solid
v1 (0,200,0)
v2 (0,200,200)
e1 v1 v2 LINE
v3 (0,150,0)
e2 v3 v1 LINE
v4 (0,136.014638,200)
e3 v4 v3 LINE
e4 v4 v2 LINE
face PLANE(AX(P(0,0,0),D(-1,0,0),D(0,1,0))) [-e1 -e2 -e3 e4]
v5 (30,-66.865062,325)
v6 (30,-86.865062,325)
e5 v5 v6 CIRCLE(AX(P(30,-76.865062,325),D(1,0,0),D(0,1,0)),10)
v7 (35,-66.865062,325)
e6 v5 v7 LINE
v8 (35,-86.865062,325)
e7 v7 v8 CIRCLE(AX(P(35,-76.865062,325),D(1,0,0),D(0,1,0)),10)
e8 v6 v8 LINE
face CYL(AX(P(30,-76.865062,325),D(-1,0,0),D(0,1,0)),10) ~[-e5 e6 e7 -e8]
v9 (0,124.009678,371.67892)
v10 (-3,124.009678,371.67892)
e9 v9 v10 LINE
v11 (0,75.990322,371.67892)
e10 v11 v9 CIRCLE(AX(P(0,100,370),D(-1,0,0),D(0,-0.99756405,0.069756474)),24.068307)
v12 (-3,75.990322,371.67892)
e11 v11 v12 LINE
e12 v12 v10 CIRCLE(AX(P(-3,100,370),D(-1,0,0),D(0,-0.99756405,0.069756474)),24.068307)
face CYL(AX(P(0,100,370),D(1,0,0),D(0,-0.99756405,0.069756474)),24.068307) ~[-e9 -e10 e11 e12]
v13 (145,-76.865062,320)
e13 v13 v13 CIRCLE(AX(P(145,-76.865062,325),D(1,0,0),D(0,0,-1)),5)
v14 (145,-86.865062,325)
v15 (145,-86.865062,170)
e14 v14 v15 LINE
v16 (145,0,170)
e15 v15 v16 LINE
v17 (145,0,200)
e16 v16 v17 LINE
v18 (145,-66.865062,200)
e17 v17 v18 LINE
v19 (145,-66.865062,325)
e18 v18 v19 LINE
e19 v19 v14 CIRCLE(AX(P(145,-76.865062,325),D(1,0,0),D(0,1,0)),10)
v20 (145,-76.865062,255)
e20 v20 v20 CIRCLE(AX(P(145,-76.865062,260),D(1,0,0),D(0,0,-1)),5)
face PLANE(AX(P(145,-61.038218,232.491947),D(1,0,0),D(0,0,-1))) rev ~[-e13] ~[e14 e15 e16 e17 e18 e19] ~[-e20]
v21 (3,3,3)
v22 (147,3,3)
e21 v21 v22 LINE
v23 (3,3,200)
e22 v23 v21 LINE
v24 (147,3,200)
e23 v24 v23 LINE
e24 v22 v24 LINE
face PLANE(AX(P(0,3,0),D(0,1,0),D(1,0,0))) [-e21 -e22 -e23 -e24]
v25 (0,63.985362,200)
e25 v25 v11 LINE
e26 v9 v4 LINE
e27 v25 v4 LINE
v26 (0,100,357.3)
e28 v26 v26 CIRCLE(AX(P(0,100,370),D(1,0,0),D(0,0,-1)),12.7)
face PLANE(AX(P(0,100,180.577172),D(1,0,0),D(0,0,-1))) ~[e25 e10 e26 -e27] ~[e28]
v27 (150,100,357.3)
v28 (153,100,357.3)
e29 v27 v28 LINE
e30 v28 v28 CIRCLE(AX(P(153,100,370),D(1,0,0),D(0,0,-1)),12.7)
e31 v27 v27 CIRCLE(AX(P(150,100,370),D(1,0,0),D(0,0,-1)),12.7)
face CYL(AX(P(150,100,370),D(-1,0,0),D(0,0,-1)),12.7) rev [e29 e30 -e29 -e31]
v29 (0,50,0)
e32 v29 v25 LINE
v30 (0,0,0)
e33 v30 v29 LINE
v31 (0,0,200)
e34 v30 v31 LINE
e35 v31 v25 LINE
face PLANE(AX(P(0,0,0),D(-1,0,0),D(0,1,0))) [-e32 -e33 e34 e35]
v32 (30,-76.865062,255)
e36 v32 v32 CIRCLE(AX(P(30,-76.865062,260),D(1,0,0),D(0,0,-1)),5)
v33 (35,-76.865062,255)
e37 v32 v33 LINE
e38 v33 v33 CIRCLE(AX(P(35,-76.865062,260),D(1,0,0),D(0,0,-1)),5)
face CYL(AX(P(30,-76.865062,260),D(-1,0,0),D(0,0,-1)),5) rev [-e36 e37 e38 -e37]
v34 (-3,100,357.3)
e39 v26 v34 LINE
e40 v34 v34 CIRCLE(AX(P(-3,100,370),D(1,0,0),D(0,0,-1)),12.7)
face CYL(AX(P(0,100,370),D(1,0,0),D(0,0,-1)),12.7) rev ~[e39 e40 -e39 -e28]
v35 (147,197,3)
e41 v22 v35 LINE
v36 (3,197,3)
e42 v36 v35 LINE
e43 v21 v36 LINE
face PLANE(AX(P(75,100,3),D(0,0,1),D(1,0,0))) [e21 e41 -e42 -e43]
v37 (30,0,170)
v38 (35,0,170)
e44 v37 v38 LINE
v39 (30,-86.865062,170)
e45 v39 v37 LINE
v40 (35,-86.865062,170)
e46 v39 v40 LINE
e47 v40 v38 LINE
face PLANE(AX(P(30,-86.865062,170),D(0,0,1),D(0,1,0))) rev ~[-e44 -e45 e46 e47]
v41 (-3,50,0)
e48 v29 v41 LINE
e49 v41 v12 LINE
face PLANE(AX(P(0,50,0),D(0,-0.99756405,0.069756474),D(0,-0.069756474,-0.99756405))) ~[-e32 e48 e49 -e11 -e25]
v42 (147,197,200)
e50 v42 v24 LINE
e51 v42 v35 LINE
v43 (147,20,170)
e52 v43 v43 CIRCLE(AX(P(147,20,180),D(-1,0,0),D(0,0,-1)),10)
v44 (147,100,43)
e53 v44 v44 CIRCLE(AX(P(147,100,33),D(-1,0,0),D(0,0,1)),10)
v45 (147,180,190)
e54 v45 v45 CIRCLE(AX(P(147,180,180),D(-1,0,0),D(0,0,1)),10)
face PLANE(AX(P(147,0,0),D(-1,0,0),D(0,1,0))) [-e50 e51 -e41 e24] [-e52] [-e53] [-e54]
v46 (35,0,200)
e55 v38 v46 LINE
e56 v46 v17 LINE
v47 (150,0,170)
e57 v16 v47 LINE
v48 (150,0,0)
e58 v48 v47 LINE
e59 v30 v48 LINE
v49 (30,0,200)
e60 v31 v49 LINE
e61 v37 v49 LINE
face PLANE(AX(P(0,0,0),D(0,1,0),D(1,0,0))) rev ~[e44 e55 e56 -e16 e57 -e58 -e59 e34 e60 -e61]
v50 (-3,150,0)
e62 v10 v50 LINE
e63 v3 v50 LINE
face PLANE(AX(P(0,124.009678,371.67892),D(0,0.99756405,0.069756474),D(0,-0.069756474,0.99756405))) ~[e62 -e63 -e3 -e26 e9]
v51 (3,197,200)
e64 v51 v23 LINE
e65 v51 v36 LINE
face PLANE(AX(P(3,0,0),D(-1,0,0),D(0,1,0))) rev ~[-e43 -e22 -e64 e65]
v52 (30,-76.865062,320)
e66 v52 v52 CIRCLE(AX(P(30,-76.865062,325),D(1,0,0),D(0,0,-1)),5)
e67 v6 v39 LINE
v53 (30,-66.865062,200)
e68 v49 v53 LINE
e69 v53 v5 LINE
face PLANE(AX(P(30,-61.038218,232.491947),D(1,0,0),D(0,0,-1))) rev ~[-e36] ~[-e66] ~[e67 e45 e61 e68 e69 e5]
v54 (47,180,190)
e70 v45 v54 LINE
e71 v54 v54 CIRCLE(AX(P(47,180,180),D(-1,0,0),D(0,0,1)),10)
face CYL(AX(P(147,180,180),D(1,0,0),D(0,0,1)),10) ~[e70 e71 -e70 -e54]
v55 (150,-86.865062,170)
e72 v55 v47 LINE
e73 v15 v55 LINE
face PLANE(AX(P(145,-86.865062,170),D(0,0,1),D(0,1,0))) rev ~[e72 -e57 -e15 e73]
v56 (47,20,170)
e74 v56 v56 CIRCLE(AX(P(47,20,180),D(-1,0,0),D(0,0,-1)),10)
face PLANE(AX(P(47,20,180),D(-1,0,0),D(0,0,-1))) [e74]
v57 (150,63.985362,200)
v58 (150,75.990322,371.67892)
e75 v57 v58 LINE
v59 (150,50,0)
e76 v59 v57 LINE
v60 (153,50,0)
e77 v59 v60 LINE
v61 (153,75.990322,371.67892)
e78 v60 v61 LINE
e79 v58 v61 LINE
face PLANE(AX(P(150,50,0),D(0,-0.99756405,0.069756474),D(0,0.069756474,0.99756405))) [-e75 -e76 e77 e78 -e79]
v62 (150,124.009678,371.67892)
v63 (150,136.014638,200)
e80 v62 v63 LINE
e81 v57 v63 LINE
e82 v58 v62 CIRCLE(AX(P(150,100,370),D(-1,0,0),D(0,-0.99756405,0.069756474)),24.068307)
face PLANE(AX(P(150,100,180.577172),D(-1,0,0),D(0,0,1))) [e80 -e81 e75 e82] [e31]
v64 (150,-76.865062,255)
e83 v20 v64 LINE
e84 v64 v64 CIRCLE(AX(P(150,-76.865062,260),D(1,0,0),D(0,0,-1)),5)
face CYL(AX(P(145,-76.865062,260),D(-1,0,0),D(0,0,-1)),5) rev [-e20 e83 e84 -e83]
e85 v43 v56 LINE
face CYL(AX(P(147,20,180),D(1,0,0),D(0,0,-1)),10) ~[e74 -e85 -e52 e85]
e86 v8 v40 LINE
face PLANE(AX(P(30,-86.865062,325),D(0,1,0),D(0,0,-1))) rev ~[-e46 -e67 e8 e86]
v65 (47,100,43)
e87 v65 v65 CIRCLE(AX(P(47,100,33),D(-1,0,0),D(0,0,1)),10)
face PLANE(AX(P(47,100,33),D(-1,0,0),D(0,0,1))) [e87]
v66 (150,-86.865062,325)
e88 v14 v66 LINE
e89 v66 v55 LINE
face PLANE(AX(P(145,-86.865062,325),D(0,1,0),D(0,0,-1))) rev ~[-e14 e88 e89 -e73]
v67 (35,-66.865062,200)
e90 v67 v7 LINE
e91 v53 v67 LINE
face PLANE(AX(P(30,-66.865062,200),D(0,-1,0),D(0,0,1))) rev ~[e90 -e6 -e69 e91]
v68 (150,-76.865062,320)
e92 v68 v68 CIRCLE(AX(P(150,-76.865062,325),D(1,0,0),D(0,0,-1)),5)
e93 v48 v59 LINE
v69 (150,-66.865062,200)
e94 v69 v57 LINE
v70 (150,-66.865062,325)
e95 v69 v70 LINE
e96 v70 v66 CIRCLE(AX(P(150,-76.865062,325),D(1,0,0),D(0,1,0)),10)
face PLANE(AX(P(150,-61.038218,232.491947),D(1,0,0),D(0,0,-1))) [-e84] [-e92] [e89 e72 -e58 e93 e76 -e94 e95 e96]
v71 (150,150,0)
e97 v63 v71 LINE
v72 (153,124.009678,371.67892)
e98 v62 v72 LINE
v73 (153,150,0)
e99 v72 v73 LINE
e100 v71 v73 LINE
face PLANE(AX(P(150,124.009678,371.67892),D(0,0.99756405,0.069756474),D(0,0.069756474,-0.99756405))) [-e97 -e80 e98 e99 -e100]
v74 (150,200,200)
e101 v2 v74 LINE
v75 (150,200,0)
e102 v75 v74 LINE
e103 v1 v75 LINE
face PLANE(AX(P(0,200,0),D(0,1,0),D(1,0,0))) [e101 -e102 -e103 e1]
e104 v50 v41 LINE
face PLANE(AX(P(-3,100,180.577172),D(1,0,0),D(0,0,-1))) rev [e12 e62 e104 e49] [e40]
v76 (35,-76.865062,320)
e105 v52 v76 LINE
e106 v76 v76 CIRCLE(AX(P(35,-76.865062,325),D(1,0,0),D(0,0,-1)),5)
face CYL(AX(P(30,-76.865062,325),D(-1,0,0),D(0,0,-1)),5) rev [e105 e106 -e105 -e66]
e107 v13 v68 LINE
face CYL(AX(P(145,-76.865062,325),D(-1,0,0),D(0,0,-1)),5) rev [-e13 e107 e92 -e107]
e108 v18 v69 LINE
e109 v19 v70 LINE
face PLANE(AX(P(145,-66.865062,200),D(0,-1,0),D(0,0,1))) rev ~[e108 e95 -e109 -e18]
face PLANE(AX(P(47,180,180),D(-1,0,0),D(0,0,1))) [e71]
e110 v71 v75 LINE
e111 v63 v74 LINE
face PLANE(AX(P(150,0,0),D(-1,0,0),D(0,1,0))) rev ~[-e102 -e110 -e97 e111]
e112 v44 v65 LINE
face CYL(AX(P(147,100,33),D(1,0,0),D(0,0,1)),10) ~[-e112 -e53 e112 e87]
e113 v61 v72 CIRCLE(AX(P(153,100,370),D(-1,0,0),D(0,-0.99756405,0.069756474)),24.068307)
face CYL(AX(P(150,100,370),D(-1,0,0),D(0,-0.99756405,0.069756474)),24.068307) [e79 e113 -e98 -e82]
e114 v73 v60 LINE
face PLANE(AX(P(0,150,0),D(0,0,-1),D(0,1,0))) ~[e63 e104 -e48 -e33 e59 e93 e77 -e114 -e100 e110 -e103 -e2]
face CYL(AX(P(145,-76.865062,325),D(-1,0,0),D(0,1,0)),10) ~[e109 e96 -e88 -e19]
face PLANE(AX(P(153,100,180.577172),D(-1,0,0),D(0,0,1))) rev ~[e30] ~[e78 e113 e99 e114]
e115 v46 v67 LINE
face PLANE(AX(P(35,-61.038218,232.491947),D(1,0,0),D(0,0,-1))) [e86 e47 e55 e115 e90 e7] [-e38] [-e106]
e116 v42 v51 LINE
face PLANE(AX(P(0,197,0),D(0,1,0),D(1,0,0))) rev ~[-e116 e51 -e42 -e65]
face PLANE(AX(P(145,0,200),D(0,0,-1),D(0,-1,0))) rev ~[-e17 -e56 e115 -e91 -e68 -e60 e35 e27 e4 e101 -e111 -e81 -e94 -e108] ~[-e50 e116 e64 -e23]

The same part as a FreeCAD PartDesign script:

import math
import FreeCAD as App
import Part
import Sketcher
Q = App.Units.Quantity


def faces_at(feature, points):
    """Names of the faces that lie closest to the given points."""
    faces = feature.Shape.Faces
    near = lambda p: min(range(len(faces)), key=lambda i: faces[i].distToShape(Part.Vertex(*p))[0])
    return sorted({f"Face{near(p) + 1}" for p in points})


def add_polygon(sketch, points):
    """Adds a closed chain of lines whose ends are joined by coincident constraints."""
    first, n = sketch.GeometryCount, len(points)
    for a, b in zip(points, points[1:] + points[:1]):
        sketch.addGeometry(Part.LineSegment(App.Vector(*a, 0), App.Vector(*b, 0)), False)
    for i in range(n):
        sketch.addConstraint(Sketcher.Constraint("Coincident", first + i, 2, first + (i + 1) % n, 1))

doc = App.newDocument("Part")
params = doc.addObject("Spreadsheet::Sheet", "Params")
for row, (alias, value) in enumerate([
    ("sketch1_width", "150 mm"),
    ("sketch1_height", "200 mm"),
    ("pad1_length", "200 mm"),
    ("thickness_wall", "3 mm"),
    ("sketch2_diameter", "20 mm"),
    ("pad2_length", "100 mm"),
    ("sketch3_diameter", "25.4 mm"),
    ("sketch3_width", "100 mm"),
    ("pad3_length", "3 mm"),
    ("sketch4_diameter", "10 mm"),
    ("sketch4_radius", "10 mm"),
    ("sketch4_height", "125 mm"),
    ("sketch4_height2", "155 mm"),
    ("pad4_length", "5 mm"),
    ("sketch5_diameter", "10 mm"),
    ("sketch5_radius", "10 mm"),
    ("sketch5_height", "125 mm"),
    ("sketch5_height2", "155 mm"),
    ("pad5_length", "5 mm"),
], start=1):
    params.set(f"A{row}", alias)
    params.set(f"B{row}", "=" + value)
    params.setAlias(f"B{row}", alias)

body = doc.addObject("PartDesign::Body", "Body")

# Sketch on XY plane
sketch1 = doc.addObject("Sketcher::SketchObject", "Sketch")
body.addObject(sketch1)
sketch1.AttachmentSupport = (doc.XY_Plane, [""])
sketch1.MapMode = "FlatFace"
add_polygon(sketch1, [(0, 200), (0, 0), (150, 0), (150, 200)])  # lines 0-3
sketch1.addConstraint([
    Sketcher.Constraint("Vertical", 0),
    Sketcher.Constraint("Horizontal", 1),
    Sketcher.Constraint("Vertical", 2),
    Sketcher.Constraint("Horizontal", 3),
    Sketcher.Constraint("Coincident", 0, 2, -1, 1),
    Sketcher.Constraint("DistanceX", 1, 1, 1, 2, Q("150 mm")),
    Sketcher.Constraint("DistanceY", 0, 2, 0, 1, Q("200 mm")),
])
sketch1.setExpression("Constraints[9]", "Params.sketch1_width")
sketch1.setExpression("Constraints[10]", "Params.sketch1_height")
pad1 = doc.addObject("PartDesign::Pad", "Pad")
body.addObject(pad1)
pad1.Profile = sketch1
pad1.setExpression("Length", "Params.pad1_length")
doc.recompute()

thickness = doc.addObject("PartDesign::Thickness", "Thickness")
body.addObject(thickness)
thickness.Base = (pad1, faces_at(pad1, [(75, 100, 200)]))
thickness.setExpression("Value", "Params.thickness_wall")
thickness.Reversed = True
thickness.Join = "Intersection"

# Sketch on YZ plane
sketch2 = doc.addObject("Sketcher::SketchObject", "Sketch001")
body.addObject(sketch2)
sketch2.AttachmentSupport = (doc.YZ_Plane, [""])
sketch2.MapMode = "FlatFace"
sketch2.AttachmentOffset = App.Placement(App.Vector(0, 0, 147), App.Rotation())
sketch2.addGeometry([
    Part.Circle(App.Vector(100, 33, 0), App.Vector(0, 0, 1), 10),
    Part.Circle(App.Vector(180, 180, 0), App.Vector(0, 0, 1), 10),
    Part.Circle(App.Vector(20, 180, 0), App.Vector(0, 0, 1), 10),
], False)
sketch2.addConstraint([
    Sketcher.Constraint("Equal", 0, 1),
    Sketcher.Constraint("Equal", 1, 2),
    Sketcher.Constraint("Horizontal", 1, 3, 2, 3),
    Sketcher.Constraint("Diameter", 0, Q("20 mm")),
    Sketcher.Constraint("DistanceX", -1, 1, 0, 3, Q("100 mm")),
    Sketcher.Constraint("DistanceY", -1, 1, 0, 3, Q("33 mm")),
    Sketcher.Constraint("DistanceX", -1, 1, 1, 3, Q("180 mm")),
    Sketcher.Constraint("DistanceY", -1, 1, 1, 3, Q("180 mm")),
    Sketcher.Constraint("DistanceX", -1, 1, 2, 3, Q("20 mm")),
])
sketch2.setExpression("Constraints[3]", "Params.sketch2_diameter")
pad2 = doc.addObject("PartDesign::Pad", "Pad001")
body.addObject(pad2)
pad2.Profile = sketch2
pad2.setExpression("Length", "Params.pad2_length")
pad2.Reversed = True

# Sketch on YZ plane
sketch3 = doc.addObject("Sketcher::SketchObject", "Sketch002")
body.addObject(sketch3)
sketch3.AttachmentSupport = (doc.YZ_Plane, [""])
sketch3.MapMode = "FlatFace"
sketch3.AttachmentOffset = App.Placement(App.Vector(0, 0, 150), App.Rotation())
sketch3.addGeometry([
    Part.LineSegment(App.Vector(150, 0, 0), App.Vector(124.009678, 371.67892, 0)),  # 0
    Part.ArcOfCircle(Part.Circle(App.Vector(100, 370, 0), App.Vector(0, 0, 1), 24.068307), math.radians(4), math.radians(176)),  # 1
    Part.LineSegment(App.Vector(75.990322, 371.67892, 0), App.Vector(50, 0, 0)),  # 2
    Part.LineSegment(App.Vector(50, 0, 0), App.Vector(150, 0, 0)),  # 3
    Part.Circle(App.Vector(100, 370, 0), App.Vector(0, 0, 1), 12.7),  # 4
], False)
sketch3.addConstraint([
    Sketcher.Constraint("Tangent", 0, 2, 1, 1),
    Sketcher.Constraint("Tangent", 1, 2, 2, 1),
    Sketcher.Constraint("Coincident", 2, 2, 3, 1),
    Sketcher.Constraint("Coincident", 3, 2, 0, 1),
    Sketcher.Constraint("Horizontal", 3),
    Sketcher.Constraint("Coincident", 4, 3, 1, 3),
    Sketcher.Constraint("PointOnObject", 2, 2, -1),
    Sketcher.Constraint("Horizontal", 0, 2, 1, 2),
    Sketcher.Constraint("Diameter", 4, Q("25.4 mm")),
    Sketcher.Constraint("DistanceX", 3, 1, 3, 2, Q("100 mm")),
    Sketcher.Constraint("Angle", 0, Q("94 deg")),
    Sketcher.Constraint("DistanceX", -1, 1, 1, 3, Q("100 mm")),
    Sketcher.Constraint("DistanceY", -1, 1, 1, 3, Q("370 mm")),
])
sketch3.setExpression("Constraints[8]", "Params.sketch3_diameter")
sketch3.setExpression("Constraints[9]", "Params.sketch3_width")
pad3 = doc.addObject("PartDesign::Pad", "Pad002")
body.addObject(pad3)
pad3.Profile = sketch3
pad3.setExpression("Length", "Params.pad3_length")
doc.recompute()

datumplane = doc.addObject("PartDesign::Plane", "DatumPlane")
body.addObject(datumplane)
datumplane.AttachmentSupport = (doc.YZ_Plane, [""])
datumplane.MapMode = "FlatFace"
datumplane.AttachmentOffset = App.Placement(App.Vector(0, 0, 75), App.Rotation())
mirrored = doc.addObject("PartDesign::Mirrored", "Mirrored")
body.addObject(mirrored)
mirrored.Originals = [pad3]
mirrored.MirrorPlane = (datumplane, [""])
body.Tip = mirrored

# Sketch on YZ plane
sketch4 = doc.addObject("Sketcher::SketchObject", "Sketch003")
body.addObject(sketch4)
sketch4.AttachmentSupport = (doc.YZ_Plane, [""])
sketch4.MapMode = "FlatFace"
sketch4.AttachmentOffset = App.Placement(App.Vector(0, 0, 30), App.Rotation())
sketch4.addGeometry([
    Part.LineSegment(App.Vector(0, 200, 0), App.Vector(-66.865062, 200, 0)),  # 0
    Part.LineSegment(App.Vector(-66.865062, 200, 0), App.Vector(-66.865062, 325, 0)),  # 1
    Part.ArcOfCircle(Part.Circle(App.Vector(-76.865062, 325, 0), App.Vector(0, 0, 1), 10), math.radians(0), math.radians(180)),  # 2
    Part.LineSegment(App.Vector(-86.865062, 325, 0), App.Vector(-86.865062, 170, 0)),  # 3
    Part.LineSegment(App.Vector(-86.865062, 170, 0), App.Vector(0, 170, 0)),  # 4
    Part.LineSegment(App.Vector(0, 170, 0), App.Vector(0, 200, 0)),  # 5
    Part.Circle(App.Vector(-76.865062, 325, 0), App.Vector(0, 0, 1), 5),  # 6
    Part.Circle(App.Vector(-76.865062, 260, 0), App.Vector(0, 0, 1), 5),  # 7
], False)
sketch4.addConstraint([
    Sketcher.Constraint("Coincident", 0, 2, 1, 1),
    Sketcher.Constraint("Tangent", 1, 2, 2, 1),
    Sketcher.Constraint("Tangent", 2, 2, 3, 1),
    Sketcher.Constraint("Coincident", 3, 2, 4, 1),
    Sketcher.Constraint("Coincident", 4, 2, 5, 1),
    Sketcher.Constraint("Coincident", 5, 2, 0, 1),
    Sketcher.Constraint("Horizontal", 0),
    Sketcher.Constraint("Vertical", 1),
    Sketcher.Constraint("Vertical", 3),
    Sketcher.Constraint("Horizontal", 4),
    Sketcher.Constraint("Vertical", 5),
    Sketcher.Constraint("Coincident", 6, 3, 2, 3),
    Sketcher.Constraint("Equal", 6, 7),
    Sketcher.Constraint("PointOnObject", 4, 2, -2),
    Sketcher.Constraint("Vertical", 6, 3, 7, 3),
    Sketcher.Constraint("Diameter", 6, Q("10 mm")),
    Sketcher.Constraint("Radius", 2, Q("10 mm")),
    Sketcher.Constraint("DistanceY", 1, 1, 1, 2, Q("125 mm")),
    Sketcher.Constraint("DistanceY", 3, 2, 3, 1, Q("155 mm")),
    Sketcher.Constraint("DistanceY", -1, 1, 2, 3, Q("325 mm")),
    Sketcher.Constraint("DistanceY", -1, 1, 7, 3, Q("260 mm")),
    Sketcher.Constraint("DistanceX", 0, 2, 0, 1, Q("66.865062 mm")),
])
sketch4.setExpression("Constraints[15]", "Params.sketch4_diameter")
sketch4.setExpression("Constraints[16]", "Params.sketch4_radius")
sketch4.setExpression("Constraints[17]", "Params.sketch4_height")
sketch4.setExpression("Constraints[18]", "Params.sketch4_height2")
pad4 = doc.addObject("PartDesign::Pad", "Pad003")
body.addObject(pad4)
pad4.Profile = sketch4
pad4.setExpression("Length", "Params.pad4_length")

# Sketch on YZ plane
sketch5 = doc.addObject("Sketcher::SketchObject", "Sketch004")
body.addObject(sketch5)
sketch5.AttachmentSupport = (doc.YZ_Plane, [""])
sketch5.MapMode = "FlatFace"
sketch5.AttachmentOffset = App.Placement(App.Vector(0, 0, 145), App.Rotation())
sketch5.addGeometry([
    Part.LineSegment(App.Vector(-66.865062, 200, 0), App.Vector(-66.865062, 325, 0)),  # 0
    Part.ArcOfCircle(Part.Circle(App.Vector(-76.865062, 325, 0), App.Vector(0, 0, 1), 10), math.radians(0), math.radians(180)),  # 1
    Part.LineSegment(App.Vector(-86.865062, 325, 0), App.Vector(-86.865062, 170, 0)),  # 2
    Part.LineSegment(App.Vector(-86.865062, 170, 0), App.Vector(0, 170, 0)),  # 3
    Part.LineSegment(App.Vector(0, 170, 0), App.Vector(0, 200, 0)),  # 4
    Part.LineSegment(App.Vector(0, 200, 0), App.Vector(-66.865062, 200, 0)),  # 5
    Part.Circle(App.Vector(-76.865062, 325, 0), App.Vector(0, 0, 1), 5),  # 6
    Part.Circle(App.Vector(-76.865062, 260, 0), App.Vector(0, 0, 1), 5),  # 7
], False)
sketch5.addConstraint([
    Sketcher.Constraint("Tangent", 0, 2, 1, 1),
    Sketcher.Constraint("Tangent", 1, 2, 2, 1),
    Sketcher.Constraint("Coincident", 2, 2, 3, 1),
    Sketcher.Constraint("Coincident", 3, 2, 4, 1),
    Sketcher.Constraint("Coincident", 4, 2, 5, 1),
    Sketcher.Constraint("Coincident", 5, 2, 0, 1),
    Sketcher.Constraint("Vertical", 0),
    Sketcher.Constraint("Vertical", 2),
    Sketcher.Constraint("Horizontal", 3),
    Sketcher.Constraint("Vertical", 4),
    Sketcher.Constraint("Horizontal", 5),
    Sketcher.Constraint("Coincident", 6, 3, 1, 3),
    Sketcher.Constraint("Equal", 6, 7),
    Sketcher.Constraint("PointOnObject", 3, 2, -2),
    Sketcher.Constraint("Vertical", 6, 3, 7, 3),
    Sketcher.Constraint("Diameter", 6, Q("10 mm")),
    Sketcher.Constraint("Radius", 1, Q("10 mm")),
    Sketcher.Constraint("DistanceY", 0, 1, 0, 2, Q("125 mm")),
    Sketcher.Constraint("DistanceY", 2, 2, 2, 1, Q("155 mm")),
    Sketcher.Constraint("DistanceY", -1, 1, 1, 3, Q("325 mm")),
    Sketcher.Constraint("DistanceY", -1, 1, 7, 3, Q("260 mm")),
    Sketcher.Constraint("DistanceX", 3, 1, 3, 2, Q("86.865062 mm")),
])
sketch5.setExpression("Constraints[15]", "Params.sketch5_diameter")
sketch5.setExpression("Constraints[16]", "Params.sketch5_radius")
sketch5.setExpression("Constraints[17]", "Params.sketch5_height")
sketch5.setExpression("Constraints[18]", "Params.sketch5_height2")
pad5 = doc.addObject("PartDesign::Pad", "Pad004")
body.addObject(pad5)
pad5.Profile = sketch5
pad5.setExpression("Length", "Params.pad5_length")

doc.recompute()
